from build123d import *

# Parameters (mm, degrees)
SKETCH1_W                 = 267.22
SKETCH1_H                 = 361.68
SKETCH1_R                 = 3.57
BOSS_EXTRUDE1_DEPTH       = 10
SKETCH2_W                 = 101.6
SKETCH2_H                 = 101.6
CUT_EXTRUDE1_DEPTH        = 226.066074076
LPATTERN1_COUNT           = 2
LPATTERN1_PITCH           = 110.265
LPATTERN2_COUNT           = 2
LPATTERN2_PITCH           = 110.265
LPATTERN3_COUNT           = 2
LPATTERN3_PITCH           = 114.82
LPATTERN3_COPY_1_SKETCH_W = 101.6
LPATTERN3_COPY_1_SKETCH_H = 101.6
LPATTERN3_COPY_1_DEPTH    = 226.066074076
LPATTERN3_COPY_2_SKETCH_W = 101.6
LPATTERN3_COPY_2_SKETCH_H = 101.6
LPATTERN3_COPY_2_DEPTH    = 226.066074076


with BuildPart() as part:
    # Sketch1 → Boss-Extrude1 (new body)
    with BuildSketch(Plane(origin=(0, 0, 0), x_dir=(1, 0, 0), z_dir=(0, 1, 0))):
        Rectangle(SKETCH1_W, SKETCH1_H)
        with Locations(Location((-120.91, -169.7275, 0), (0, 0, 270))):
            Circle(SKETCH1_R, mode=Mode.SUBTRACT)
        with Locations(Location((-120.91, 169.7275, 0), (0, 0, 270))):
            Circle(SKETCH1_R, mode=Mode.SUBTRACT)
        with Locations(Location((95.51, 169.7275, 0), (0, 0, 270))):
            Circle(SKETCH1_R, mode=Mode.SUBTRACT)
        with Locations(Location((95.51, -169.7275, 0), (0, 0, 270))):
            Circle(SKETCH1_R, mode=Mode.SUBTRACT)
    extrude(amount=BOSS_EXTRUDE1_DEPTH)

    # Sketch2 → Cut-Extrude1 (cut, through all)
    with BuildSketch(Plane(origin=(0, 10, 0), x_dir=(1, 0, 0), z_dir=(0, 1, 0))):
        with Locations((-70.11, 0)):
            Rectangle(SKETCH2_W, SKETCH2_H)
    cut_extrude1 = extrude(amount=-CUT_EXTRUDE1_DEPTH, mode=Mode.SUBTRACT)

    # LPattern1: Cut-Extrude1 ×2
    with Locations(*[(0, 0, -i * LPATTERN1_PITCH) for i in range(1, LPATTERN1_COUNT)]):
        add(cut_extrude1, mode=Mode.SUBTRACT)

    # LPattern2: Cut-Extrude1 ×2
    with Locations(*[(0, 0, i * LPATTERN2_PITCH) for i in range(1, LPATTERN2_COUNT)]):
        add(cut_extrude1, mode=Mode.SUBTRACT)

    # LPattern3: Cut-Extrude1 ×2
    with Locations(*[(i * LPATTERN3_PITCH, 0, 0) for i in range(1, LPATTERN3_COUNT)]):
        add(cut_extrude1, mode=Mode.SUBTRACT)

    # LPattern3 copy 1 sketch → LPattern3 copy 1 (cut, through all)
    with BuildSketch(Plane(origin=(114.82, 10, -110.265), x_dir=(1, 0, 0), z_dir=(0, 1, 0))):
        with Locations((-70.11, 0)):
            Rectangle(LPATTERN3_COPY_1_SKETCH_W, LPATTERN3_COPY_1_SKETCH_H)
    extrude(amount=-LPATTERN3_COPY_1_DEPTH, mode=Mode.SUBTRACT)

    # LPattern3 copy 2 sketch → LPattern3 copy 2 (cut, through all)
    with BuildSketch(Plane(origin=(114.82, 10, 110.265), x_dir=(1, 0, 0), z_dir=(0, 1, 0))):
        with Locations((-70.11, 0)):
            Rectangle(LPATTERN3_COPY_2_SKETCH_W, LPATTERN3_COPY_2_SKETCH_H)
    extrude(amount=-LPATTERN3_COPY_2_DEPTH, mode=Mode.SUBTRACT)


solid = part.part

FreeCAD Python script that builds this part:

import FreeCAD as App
import Part
import Sketcher

V = App.Vector
Q = App.Units.Quantity

doc = App.newDocument("Part")
params = doc.addObject("Spreadsheet::Sheet", "Params")
for row, (alias, value) in enumerate([
    ("sketch1_diameter", "7.14 mm"),
    ("sketch1_width", "267.22 mm"),
    ("sketch1_height", "361.68 mm"),
    ("pad1_length", "10 mm"),
    ("sketch2_width", "101.6 mm"),
    ("linearpattern_pitch", "110.265 mm"),
    ("linearpattern2_pitch", "110.265 mm"),
    ("linearpattern3_pitch", "114.82 mm"),
    ("sketch3_width", "101.6 mm"),
    ("sketch4_width", "101.6 mm"),
], start=1):
    params.set(f"A{row}", alias)
    params.set(f"B{row}", "=" + value)
    params.setAlias(f"B{row}", alias)

body = doc.addObject("PartDesign::Body", "Body")

sketch1 = doc.addObject("Sketcher::SketchObject", "Sketch")
body.addObject(sketch1)
sketch1.AttachmentSupport = (doc.XZ_Plane, [""])
sketch1.MapMode = "FlatFace"
sketch1.addGeometry(Part.LineSegment(V(-133.6, -180.8, 0), V(-133.6, 180.8, 0)), False)
sketch1.addGeometry(Part.LineSegment(V(-133.6, 180.8, 0), V(133.6, 180.8, 0)), False)
sketch1.addGeometry(Part.LineSegment(V(133.6, 180.8, 0), V(133.6, -180.8, 0)), False)
sketch1.addGeometry(Part.LineSegment(V(133.6, -180.8, 0), V(-133.6, -180.8, 0)), False)
sketch1.addGeometry(Part.Circle(V(-120.9, 169.7, 0), V(0, 0, 1), 3.6), False)
sketch1.addGeometry(Part.Circle(V(95.5, 169.7, 0), V(0, 0, 1), 3.6), False)
sketch1.addGeometry(Part.Circle(V(-120.9, -169.7, 0), V(0, 0, 1), 3.6), False)
sketch1.addGeometry(Part.Circle(V(95.5, -169.7, 0), V(0, 0, 1), 3.6), False)
sketch1.addConstraint(Sketcher.Constraint("Coincident", 0, 2, 1, 1))
sketch1.addConstraint(Sketcher.Constraint("Coincident", 1, 2, 2, 1))
sketch1.addConstraint(Sketcher.Constraint("Coincident", 2, 2, 3, 1))
sketch1.addConstraint(Sketcher.Constraint("Coincident", 3, 2, 0, 1))
sketch1.addConstraint(Sketcher.Constraint("Vertical", 0))
sketch1.addConstraint(Sketcher.Constraint("Horizontal", 1))
sketch1.addConstraint(Sketcher.Constraint("Vertical", 2))
sketch1.addConstraint(Sketcher.Constraint("Horizontal", 3))
sketch1.addConstraint(Sketcher.Constraint("Equal", 4, 5))
sketch1.addConstraint(Sketcher.Constraint("Equal", 5, 6))
sketch1.addConstraint(Sketcher.Constraint("Equal", 6, 7))
sketch1.addConstraint(Sketcher.Constraint("Symmetric", 0, 2, 2, 2, -1, 1))
sketch1.addConstraint(Sketcher.Constraint("Symmetric", 4, 3, 6, 3, -1))
sketch1.addConstraint(Sketcher.Constraint("Symmetric", 5, 3, 7, 3, -1))
sketch1.addConstraint(Sketcher.Constraint("Horizontal", 4, 3, 5, 3))
sketch1.addConstraint(Sketcher.Constraint("Diameter", 4, Q("7.14 mm")))
sketch1.addConstraint(Sketcher.Constraint("DistanceX", 1, 1, 1, 2, Q("267.22 mm")))
sketch1.addConstraint(Sketcher.Constraint("DistanceY", 0, 1, 0, 2, Q("361.68 mm")))
sketch1.addConstraint(Sketcher.Constraint("DistanceX", 0, 2, 4, 3, Q("12.7 mm")))
sketch1.addConstraint(Sketcher.Constraint("DistanceX", 5, 3, 1, 2, Q("38.1 mm")))
sketch1.addConstraint(Sketcher.Constraint("DistanceY", 6, 3, 4, 3, Q("339.455 mm")))
sketch1.setExpression("Constraints[15]", "Params.sketch1_diameter")
sketch1.setExpression("Constraints[16]", "Params.sketch1_width")
sketch1.setExpression("Constraints[17]", "Params.sketch1_height")
pad1 = doc.addObject("PartDesign::Pad", "Pad")
body.addObject(pad1)
pad1.Profile = sketch1
pad1.setExpression("Length", "Params.pad1_length")
pad1.Reversed = True

sketch2 = doc.addObject("Sketcher::SketchObject", "Sketch001")
body.addObject(sketch2)
sketch2.AttachmentSupport = (doc.XZ_Plane, [""])
sketch2.MapMode = "FlatFace"
sketch2.AttachmentOffset = App.Placement(V(0, 0, -10), App.Rotation())
sketch2.addGeometry(Part.LineSegment(V(-121, -51, 0), V(-121, 51, 0)), False)
sketch2.addGeometry(Part.LineSegment(V(-121, 51, 0), V(-19, 51, 0)), False)
sketch2.addGeometry(Part.LineSegment(V(-19, 51, 0), V(-19, -51, 0)), False)
sketch2.addGeometry(Part.LineSegment(V(-19, -51, 0), V(-121, -51, 0)), False)
sketch2.addConstraint(Sketcher.Constraint("Coincident", 0, 2, 1, 1))
sketch2.addConstraint(Sketcher.Constraint("Coincident", 1, 2, 2, 1))
sketch2.addConstraint(Sketcher.Constraint("Coincident", 2, 2, 3, 1))
sketch2.addConstraint(Sketcher.Constraint("Coincident", 3, 2, 0, 1))
sketch2.addConstraint(Sketcher.Constraint("Vertical", 0))
sketch2.addConstraint(Sketcher.Constraint("Horizontal", 1))
sketch2.addConstraint(Sketcher.Constraint("Vertical", 2))
sketch2.addConstraint(Sketcher.Constraint("Horizontal", 3))
sketch2.addConstraint(Sketcher.Constraint("Equal", 3, 0))
sketch2.addConstraint(Sketcher.Constraint("DistanceX", 1, 1, 1, 2, Q("101.6 mm")))
sketch2.addConstraint(Sketcher.Constraint("DistanceY", -1, 1, 0, 2, Q("50.8 mm")))
sketch2.addConstraint(Sketcher.Constraint("DistanceX", 0, 2, -1, 1, Q("120.91 mm")))
sketch2.setExpression("Constraints[9]", "Params.sketch2_width")
pocket1 = doc.addObject("PartDesign::Pocket", "Pocket")
body.addObject(pocket1)
pocket1.Profile = sketch2
pocket1.Type = "ThroughAll"
pocket1.Reversed = True
doc.recompute()

linearpattern = doc.addObject("PartDesign::LinearPattern", "LinearPattern")
body.addObject(linearpattern)
linearpattern.Originals = [pocket1]
linearpattern.Direction = (doc.Z_Axis, [""])
linearpattern.Mode = "offset"
linearpattern.setExpression("Offset", "Params.linearpattern_pitch")
linearpattern.Occurrences = 2
linearpattern.Reversed = True
body.Tip = linearpattern
doc.recompute()

linearpattern2 = doc.addObject("PartDesign::LinearPattern", "LinearPattern001")
body.addObject(linearpattern2)
linearpattern2.Originals = [pocket1]
linearpattern2.Direction = (doc.Z_Axis, [""])
linearpattern2.Mode = "offset"
linearpattern2.setExpression("Offset", "Params.linearpattern2_pitch")
linearpattern2.Occurrences = 2
body.Tip = linearpattern2
doc.recompute()

linearpattern3 = doc.addObject("PartDesign::LinearPattern", "LinearPattern002")
body.addObject(linearpattern3)
linearpattern3.Originals = [pocket1]
linearpattern3.Direction = (doc.X_Axis, [""])
linearpattern3.Mode = "offset"
linearpattern3.setExpression("Offset", "Params.linearpattern3_pitch")
linearpattern3.Occurrences = 2
body.Tip = linearpattern3

sketch3 = doc.addObject("Sketcher::SketchObject", "Sketch002")
body.addObject(sketch3)
sketch3.AttachmentSupport = (doc.XZ_Plane, [""])
sketch3.MapMode = "FlatFace"
sketch3.AttachmentOffset = App.Placement(V(0, 0, -10), App.Rotation())
sketch3.addGeometry(Part.LineSegment(V(-6, -161, 0), V(-6, -59, 0)), False)
sketch3.addGeometry(Part.LineSegment(V(-6, -59, 0), V(96, -59, 0)), False)
sketch3.addGeometry(Part.LineSegment(V(96, -59, 0), V(96, -161, 0)), False)
sketch3.addGeometry(Part.LineSegment(V(96, -161, 0), V(-6, -161, 0)), False)
sketch3.addConstraint(Sketcher.Constraint("Coincident", 0, 2, 1, 1))
sketch3.addConstraint(Sketcher.Constraint("Coincident", 1, 2, 2, 1))
sketch3.addConstraint(Sketcher.Constraint("Coincident", 2, 2, 3, 1))
sketch3.addConstraint(Sketcher.Constraint("Coincident", 3, 2, 0, 1))
sketch3.addConstraint(Sketcher.Constraint("Vertical", 0))
sketch3.addConstraint(Sketcher.Constraint("Horizontal", 1))
sketch3.addConstraint(Sketcher.Constraint("Vertical", 2))
sketch3.addConstraint(Sketcher.Constraint("Horizontal", 3))
sketch3.addConstraint(Sketcher.Constraint("Equal", 3, 0))
sketch3.addConstraint(Sketcher.Constraint("DistanceX", 1, 1, 1, 2, Q("101.6 mm")))
sketch3.addConstraint(Sketcher.Constraint("DistanceX", 0, 2, -1, 1, Q("6.09 mm")))
sketch3.addConstraint(Sketcher.Constraint("DistanceY", 0, 2, -1, 1, Q("59.465 mm")))
sketch3.setExpression("Constraints[9]", "Params.sketch3_width")
pocket2 = doc.addObject("PartDesign::Pocket", "Pocket001")
body.addObject(pocket2)
pocket2.Profile = sketch3
pocket2.Type = "ThroughAll"
pocket2.Reversed = True

sketch4 = doc.addObject("Sketcher::SketchObject", "Sketch003")
body.addObject(sketch4)
sketch4.AttachmentSupport = (doc.XZ_Plane, [""])
sketch4.MapMode = "FlatFace"
sketch4.AttachmentOffset = App.Placement(V(0, 0, -10), App.Rotation())
sketch4.addGeometry(Part.LineSegment(V(-6, 59, 0), V(-6, 161, 0)), False)
sketch4.addGeometry(Part.LineSegment(V(-6, 161, 0), V(96, 161, 0)), False)
sketch4.addGeometry(Part.LineSegment(V(96, 161, 0), V(96, 59, 0)), False)
sketch4.addGeometry(Part.LineSegment(V(96, 59, 0), V(-6, 59, 0)), False)
sketch4.addConstraint(Sketcher.Constraint("Coincident", 0, 2, 1, 1))
sketch4.addConstraint(Sketcher.Constraint("Coincident", 1, 2, 2, 1))
sketch4.addConstraint(Sketcher.Constraint("Coincident", 2, 2, 3, 1))
sketch4.addConstraint(Sketcher.Constraint("Coincident", 3, 2, 0, 1))
sketch4.addConstraint(Sketcher.Constraint("Vertical", 0))
sketch4.addConstraint(Sketcher.Constraint("Horizontal", 1))
sketch4.addConstraint(Sketcher.Constraint("Vertical", 2))
sketch4.addConstraint(Sketcher.Constraint("Horizontal", 3))
sketch4.addConstraint(Sketcher.Constraint("Equal", 3, 0))
sketch4.addConstraint(Sketcher.Constraint("DistanceX", 1, 1, 1, 2, Q("101.6 mm")))
sketch4.addConstraint(Sketcher.Constraint("DistanceX", 0, 2, -1, 1, Q("6.09 mm")))
sketch4.addConstraint(Sketcher.Constraint("DistanceY", -1, 1, 0, 2, Q("161.065 mm")))
sketch4.setExpression("Constraints[9]", "Params.sketch4_width")
pocket3 = doc.addObject("PartDesign::Pocket", "Pocket002")
body.addObject(pocket3)
pocket3.Profile = sketch4
pocket3.Type = "ThroughAll"
pocket3.Reversed = True

doc.recompute()
